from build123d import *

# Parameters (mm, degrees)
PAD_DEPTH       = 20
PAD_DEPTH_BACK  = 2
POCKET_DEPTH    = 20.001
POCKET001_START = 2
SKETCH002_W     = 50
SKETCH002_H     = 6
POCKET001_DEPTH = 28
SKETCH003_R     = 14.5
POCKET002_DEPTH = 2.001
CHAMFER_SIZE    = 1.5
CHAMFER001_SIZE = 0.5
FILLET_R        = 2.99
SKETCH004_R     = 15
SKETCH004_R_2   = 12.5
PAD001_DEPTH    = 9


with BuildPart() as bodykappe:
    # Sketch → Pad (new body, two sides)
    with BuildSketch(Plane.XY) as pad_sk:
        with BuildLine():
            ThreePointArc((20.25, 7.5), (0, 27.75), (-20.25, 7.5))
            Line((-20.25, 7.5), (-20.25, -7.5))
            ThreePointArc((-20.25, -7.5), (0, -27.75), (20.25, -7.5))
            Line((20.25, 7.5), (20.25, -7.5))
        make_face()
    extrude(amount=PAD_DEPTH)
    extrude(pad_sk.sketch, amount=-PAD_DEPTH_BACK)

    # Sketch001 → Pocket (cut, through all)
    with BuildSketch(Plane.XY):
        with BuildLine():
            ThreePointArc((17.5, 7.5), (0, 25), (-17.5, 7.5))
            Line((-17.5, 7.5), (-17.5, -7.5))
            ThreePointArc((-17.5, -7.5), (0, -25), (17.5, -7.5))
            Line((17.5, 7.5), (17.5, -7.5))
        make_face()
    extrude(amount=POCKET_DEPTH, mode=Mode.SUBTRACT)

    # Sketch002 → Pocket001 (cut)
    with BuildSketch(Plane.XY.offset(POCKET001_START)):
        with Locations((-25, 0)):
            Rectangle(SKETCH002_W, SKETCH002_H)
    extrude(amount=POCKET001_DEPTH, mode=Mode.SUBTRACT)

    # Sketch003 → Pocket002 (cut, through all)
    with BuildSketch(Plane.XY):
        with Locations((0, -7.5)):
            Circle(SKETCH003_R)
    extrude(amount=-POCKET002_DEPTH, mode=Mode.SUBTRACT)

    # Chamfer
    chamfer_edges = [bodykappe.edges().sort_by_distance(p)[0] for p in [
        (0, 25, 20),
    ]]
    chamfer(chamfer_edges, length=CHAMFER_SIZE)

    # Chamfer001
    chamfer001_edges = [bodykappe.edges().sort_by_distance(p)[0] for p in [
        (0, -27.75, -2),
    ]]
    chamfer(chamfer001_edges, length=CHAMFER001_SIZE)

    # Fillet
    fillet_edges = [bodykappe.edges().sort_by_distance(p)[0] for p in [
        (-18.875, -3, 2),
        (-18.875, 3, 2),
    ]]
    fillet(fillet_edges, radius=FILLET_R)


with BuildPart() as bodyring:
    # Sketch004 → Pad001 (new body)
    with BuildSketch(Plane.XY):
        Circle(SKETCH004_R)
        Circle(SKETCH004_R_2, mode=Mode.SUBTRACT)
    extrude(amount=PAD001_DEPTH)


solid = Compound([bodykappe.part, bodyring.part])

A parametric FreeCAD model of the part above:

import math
import FreeCAD as App
import Part
import Sketcher


def edges_at(feature, points):
    """Names of the edges that pass closest to the given points."""
    edges = feature.Shape.Edges
    near = lambda p: min(range(len(edges)), key=lambda i: edges[i].distToShape(Part.Vertex(*p))[0])
    return sorted({f"Edge{near(p) + 1}" for p in points})

doc = App.newDocument("Part")
body = doc.addObject("PartDesign::Body", "Body")

# Sketch on XY plane
sketch1 = body.newObject("Sketcher::SketchObject", "Sketch")
sketch1.AttachmentSupport = (doc.getObject("XY_Plane"), [""])
sketch1.MapMode = "FlatFace"
sketch1.addGeometry([
    Part.ArcOfCircle(Part.Circle(App.Vector(0, 7.5, 0), App.Vector(0, 0, 1), 20.25), math.radians(0), math.radians(180)),
    Part.LineSegment(App.Vector(-20.25, 7.5, 0), App.Vector(-20.25, -7.5, 0)),
    Part.ArcOfCircle(Part.Circle(App.Vector(0, -7.5, 0), App.Vector(0, 0, 1), 20.25), math.radians(180), math.radians(360)),
    Part.LineSegment(App.Vector(20.25, -7.5, 0), App.Vector(20.25, 7.5, 0)),
], False)
sketch1.addConstraint([
    Sketcher.Constraint("Tangent", 0, 2, 1, 1),
    Sketcher.Constraint("Tangent", 1, 2, 2, 1),
    Sketcher.Constraint("Tangent", 2, 2, 3, 1),
    Sketcher.Constraint("Tangent", 3, 2, 0, 1),
    Sketcher.Constraint("Vertical", 1),
    Sketcher.Constraint("Vertical", 3),
    Sketcher.Constraint("Symmetric", 0, 3, 2, 3, -1, 1),
    Sketcher.Constraint("DistanceY", 1, 2, 1, 1, 15.0),
    Sketcher.Constraint("Radius", 0, 20.25),
])
pad1 = body.newObject("PartDesign::Pad", "Pad")
pad1.Profile = sketch1
pad1.Type = "TwoLengths"
pad1.Length = 20
pad1.Length2 = 2

# Sketch on XY plane
sketch2 = body.newObject("Sketcher::SketchObject", "Sketch001")
sketch2.AttachmentSupport = (doc.getObject("XY_Plane"), [""])
sketch2.MapMode = "FlatFace"
sketch2.addGeometry([
    Part.ArcOfCircle(Part.Circle(App.Vector(0, 7.5, 0), App.Vector(0, 0, 1), 17.5), math.radians(0), math.radians(180)),
    Part.LineSegment(App.Vector(-17.5, 7.5, 0), App.Vector(-17.5, -7.5, 0)),
    Part.ArcOfCircle(Part.Circle(App.Vector(0, -7.5, 0), App.Vector(0, 0, 1), 17.5), math.radians(180), math.radians(360)),
    Part.LineSegment(App.Vector(17.5, -7.5, 0), App.Vector(17.5, 7.5, 0)),
], False)
sketch2.addConstraint([
    Sketcher.Constraint("Tangent", 0, 2, 1, 1),
    Sketcher.Constraint("Tangent", 1, 2, 2, 1),
    Sketcher.Constraint("Tangent", 2, 2, 3, 1),
    Sketcher.Constraint("Tangent", 3, 2, 0, 1),
    Sketcher.Constraint("Vertical", 1),
    Sketcher.Constraint("Vertical", 3),
    Sketcher.Constraint("Symmetric", 0, 3, 2, 3, -1, 1),
    Sketcher.Constraint("Radius", 0, 17.5),
    Sketcher.Constraint("DistanceY", 1, 2, 1, 1, 15.0),
])
pocket1 = body.newObject("PartDesign::Pocket", "Pocket")
pocket1.Profile = sketch2
pocket1.Type = "ThroughAll"
pocket1.Reversed = True

# Sketch on XY plane
sketch3 = body.newObject("Sketcher::SketchObject", "Sketch002")
sketch3.AttachmentSupport = (doc.getObject("XY_Plane"), [""])
sketch3.MapMode = "FlatFace"
sketch3.AttachmentOffset = App.Placement(App.Vector(0, 0, 2), App.Rotation())
sketch3.addGeometry([
    Part.LineSegment(App.Vector(-50, 3, 0), App.Vector(-50, -3, 0)),
    Part.LineSegment(App.Vector(-50, -3, 0), App.Vector(0, -3, 0)),
    Part.LineSegment(App.Vector(0, -3, 0), App.Vector(0, 3, 0)),
    Part.LineSegment(App.Vector(0, 3, 0), App.Vector(-50, 3, 0)),
], False)
sketch3.addConstraint([
    Sketcher.Constraint("Coincident", 0, 2, 1, 1),
    Sketcher.Constraint("Coincident", 1, 2, 2, 1),
    Sketcher.Constraint("Coincident", 2, 2, 3, 1),
    Sketcher.Constraint("Coincident", 3, 2, 0, 1),
    Sketcher.Constraint("Vertical", 0),
    Sketcher.Constraint("Horizontal", 1),
    Sketcher.Constraint("Vertical", 2),
    Sketcher.Constraint("Horizontal", 3),
    Sketcher.Constraint("Symmetric", 1, 2, 2, 2, -1, 1),
    Sketcher.Constraint("DistanceX", 1, 1, 1, 2, 50.0),
    Sketcher.Constraint("DistanceY", 0, 2, 0, 1, 6.0),
])
pocket2 = body.newObject("PartDesign::Pocket", "Pocket001")
pocket2.Profile = sketch3
pocket2.Length = 28
pocket2.Reversed = True

# Sketch on XY plane
sketch4 = body.newObject("Sketcher::SketchObject", "Sketch003")
sketch4.AttachmentSupport = (doc.getObject("XY_Plane"), [""])
sketch4.MapMode = "FlatFace"
sketch4.addGeometry(Part.Circle(App.Vector(0, -7.5, 0), App.Vector(0, 0, 1), 14.5), False)
sketch4.addConstraint([
    Sketcher.Constraint("PointOnObject", 0, 3, -2),
    Sketcher.Constraint("Diameter", 0, 29.0),
    Sketcher.Constraint("DistanceY", 0, 3, -1, 1, 7.5),
])
pocket3 = body.newObject("PartDesign::Pocket", "Pocket002")
pocket3.Profile = sketch4
pocket3.Type = "ThroughAll"
doc.recompute()

chamfer = body.newObject("PartDesign::Chamfer", "Chamfer")
chamfer.Base = (pocket3, edges_at(pocket3, [(0, 25, 20)]))
chamfer.Size = 1.5
doc.recompute()

chamfer2 = body.newObject("PartDesign::Chamfer", "Chamfer001")
chamfer2.Base = (chamfer, edges_at(chamfer, [(0, -27.75, -2)]))
chamfer2.Size = 0.5
doc.recompute()

fillet = body.newObject("PartDesign::Fillet", "Fillet")
fillet.Base = (chamfer2, edges_at(chamfer2, [(-18.875, -3, 2), (-18.875, 3, 2)]))
fillet.Radius = 2.99
body2 = doc.addObject("PartDesign::Body", "Body001")

# Sketch on XY plane
sketch5 = body2.newObject("Sketcher::SketchObject", "Sketch004")
sketch5.AttachmentSupport = (doc.getObject("XY_Plane001"), [""])
sketch5.MapMode = "FlatFace"
sketch5.addGeometry([
    Part.Circle(App.Vector(0, 0, 0), App.Vector(0, 0, 1), 15),
    Part.Circle(App.Vector(0, 0, 0), App.Vector(0, 0, 1), 12.5),
], False)
sketch5.addConstraint([
    Sketcher.Constraint("Coincident", 0, 3, -1, 1),
    Sketcher.Constraint("Coincident", 1, 3, -1, 1),
    Sketcher.Constraint("Diameter", 0, 30.0),
    Sketcher.Constraint("Diameter", 1, 25.0),
])
pad2 = body2.newObject("PartDesign::Pad", "Pad001")
pad2.Profile = sketch5
pad2.Length = 9

doc.recompute()
